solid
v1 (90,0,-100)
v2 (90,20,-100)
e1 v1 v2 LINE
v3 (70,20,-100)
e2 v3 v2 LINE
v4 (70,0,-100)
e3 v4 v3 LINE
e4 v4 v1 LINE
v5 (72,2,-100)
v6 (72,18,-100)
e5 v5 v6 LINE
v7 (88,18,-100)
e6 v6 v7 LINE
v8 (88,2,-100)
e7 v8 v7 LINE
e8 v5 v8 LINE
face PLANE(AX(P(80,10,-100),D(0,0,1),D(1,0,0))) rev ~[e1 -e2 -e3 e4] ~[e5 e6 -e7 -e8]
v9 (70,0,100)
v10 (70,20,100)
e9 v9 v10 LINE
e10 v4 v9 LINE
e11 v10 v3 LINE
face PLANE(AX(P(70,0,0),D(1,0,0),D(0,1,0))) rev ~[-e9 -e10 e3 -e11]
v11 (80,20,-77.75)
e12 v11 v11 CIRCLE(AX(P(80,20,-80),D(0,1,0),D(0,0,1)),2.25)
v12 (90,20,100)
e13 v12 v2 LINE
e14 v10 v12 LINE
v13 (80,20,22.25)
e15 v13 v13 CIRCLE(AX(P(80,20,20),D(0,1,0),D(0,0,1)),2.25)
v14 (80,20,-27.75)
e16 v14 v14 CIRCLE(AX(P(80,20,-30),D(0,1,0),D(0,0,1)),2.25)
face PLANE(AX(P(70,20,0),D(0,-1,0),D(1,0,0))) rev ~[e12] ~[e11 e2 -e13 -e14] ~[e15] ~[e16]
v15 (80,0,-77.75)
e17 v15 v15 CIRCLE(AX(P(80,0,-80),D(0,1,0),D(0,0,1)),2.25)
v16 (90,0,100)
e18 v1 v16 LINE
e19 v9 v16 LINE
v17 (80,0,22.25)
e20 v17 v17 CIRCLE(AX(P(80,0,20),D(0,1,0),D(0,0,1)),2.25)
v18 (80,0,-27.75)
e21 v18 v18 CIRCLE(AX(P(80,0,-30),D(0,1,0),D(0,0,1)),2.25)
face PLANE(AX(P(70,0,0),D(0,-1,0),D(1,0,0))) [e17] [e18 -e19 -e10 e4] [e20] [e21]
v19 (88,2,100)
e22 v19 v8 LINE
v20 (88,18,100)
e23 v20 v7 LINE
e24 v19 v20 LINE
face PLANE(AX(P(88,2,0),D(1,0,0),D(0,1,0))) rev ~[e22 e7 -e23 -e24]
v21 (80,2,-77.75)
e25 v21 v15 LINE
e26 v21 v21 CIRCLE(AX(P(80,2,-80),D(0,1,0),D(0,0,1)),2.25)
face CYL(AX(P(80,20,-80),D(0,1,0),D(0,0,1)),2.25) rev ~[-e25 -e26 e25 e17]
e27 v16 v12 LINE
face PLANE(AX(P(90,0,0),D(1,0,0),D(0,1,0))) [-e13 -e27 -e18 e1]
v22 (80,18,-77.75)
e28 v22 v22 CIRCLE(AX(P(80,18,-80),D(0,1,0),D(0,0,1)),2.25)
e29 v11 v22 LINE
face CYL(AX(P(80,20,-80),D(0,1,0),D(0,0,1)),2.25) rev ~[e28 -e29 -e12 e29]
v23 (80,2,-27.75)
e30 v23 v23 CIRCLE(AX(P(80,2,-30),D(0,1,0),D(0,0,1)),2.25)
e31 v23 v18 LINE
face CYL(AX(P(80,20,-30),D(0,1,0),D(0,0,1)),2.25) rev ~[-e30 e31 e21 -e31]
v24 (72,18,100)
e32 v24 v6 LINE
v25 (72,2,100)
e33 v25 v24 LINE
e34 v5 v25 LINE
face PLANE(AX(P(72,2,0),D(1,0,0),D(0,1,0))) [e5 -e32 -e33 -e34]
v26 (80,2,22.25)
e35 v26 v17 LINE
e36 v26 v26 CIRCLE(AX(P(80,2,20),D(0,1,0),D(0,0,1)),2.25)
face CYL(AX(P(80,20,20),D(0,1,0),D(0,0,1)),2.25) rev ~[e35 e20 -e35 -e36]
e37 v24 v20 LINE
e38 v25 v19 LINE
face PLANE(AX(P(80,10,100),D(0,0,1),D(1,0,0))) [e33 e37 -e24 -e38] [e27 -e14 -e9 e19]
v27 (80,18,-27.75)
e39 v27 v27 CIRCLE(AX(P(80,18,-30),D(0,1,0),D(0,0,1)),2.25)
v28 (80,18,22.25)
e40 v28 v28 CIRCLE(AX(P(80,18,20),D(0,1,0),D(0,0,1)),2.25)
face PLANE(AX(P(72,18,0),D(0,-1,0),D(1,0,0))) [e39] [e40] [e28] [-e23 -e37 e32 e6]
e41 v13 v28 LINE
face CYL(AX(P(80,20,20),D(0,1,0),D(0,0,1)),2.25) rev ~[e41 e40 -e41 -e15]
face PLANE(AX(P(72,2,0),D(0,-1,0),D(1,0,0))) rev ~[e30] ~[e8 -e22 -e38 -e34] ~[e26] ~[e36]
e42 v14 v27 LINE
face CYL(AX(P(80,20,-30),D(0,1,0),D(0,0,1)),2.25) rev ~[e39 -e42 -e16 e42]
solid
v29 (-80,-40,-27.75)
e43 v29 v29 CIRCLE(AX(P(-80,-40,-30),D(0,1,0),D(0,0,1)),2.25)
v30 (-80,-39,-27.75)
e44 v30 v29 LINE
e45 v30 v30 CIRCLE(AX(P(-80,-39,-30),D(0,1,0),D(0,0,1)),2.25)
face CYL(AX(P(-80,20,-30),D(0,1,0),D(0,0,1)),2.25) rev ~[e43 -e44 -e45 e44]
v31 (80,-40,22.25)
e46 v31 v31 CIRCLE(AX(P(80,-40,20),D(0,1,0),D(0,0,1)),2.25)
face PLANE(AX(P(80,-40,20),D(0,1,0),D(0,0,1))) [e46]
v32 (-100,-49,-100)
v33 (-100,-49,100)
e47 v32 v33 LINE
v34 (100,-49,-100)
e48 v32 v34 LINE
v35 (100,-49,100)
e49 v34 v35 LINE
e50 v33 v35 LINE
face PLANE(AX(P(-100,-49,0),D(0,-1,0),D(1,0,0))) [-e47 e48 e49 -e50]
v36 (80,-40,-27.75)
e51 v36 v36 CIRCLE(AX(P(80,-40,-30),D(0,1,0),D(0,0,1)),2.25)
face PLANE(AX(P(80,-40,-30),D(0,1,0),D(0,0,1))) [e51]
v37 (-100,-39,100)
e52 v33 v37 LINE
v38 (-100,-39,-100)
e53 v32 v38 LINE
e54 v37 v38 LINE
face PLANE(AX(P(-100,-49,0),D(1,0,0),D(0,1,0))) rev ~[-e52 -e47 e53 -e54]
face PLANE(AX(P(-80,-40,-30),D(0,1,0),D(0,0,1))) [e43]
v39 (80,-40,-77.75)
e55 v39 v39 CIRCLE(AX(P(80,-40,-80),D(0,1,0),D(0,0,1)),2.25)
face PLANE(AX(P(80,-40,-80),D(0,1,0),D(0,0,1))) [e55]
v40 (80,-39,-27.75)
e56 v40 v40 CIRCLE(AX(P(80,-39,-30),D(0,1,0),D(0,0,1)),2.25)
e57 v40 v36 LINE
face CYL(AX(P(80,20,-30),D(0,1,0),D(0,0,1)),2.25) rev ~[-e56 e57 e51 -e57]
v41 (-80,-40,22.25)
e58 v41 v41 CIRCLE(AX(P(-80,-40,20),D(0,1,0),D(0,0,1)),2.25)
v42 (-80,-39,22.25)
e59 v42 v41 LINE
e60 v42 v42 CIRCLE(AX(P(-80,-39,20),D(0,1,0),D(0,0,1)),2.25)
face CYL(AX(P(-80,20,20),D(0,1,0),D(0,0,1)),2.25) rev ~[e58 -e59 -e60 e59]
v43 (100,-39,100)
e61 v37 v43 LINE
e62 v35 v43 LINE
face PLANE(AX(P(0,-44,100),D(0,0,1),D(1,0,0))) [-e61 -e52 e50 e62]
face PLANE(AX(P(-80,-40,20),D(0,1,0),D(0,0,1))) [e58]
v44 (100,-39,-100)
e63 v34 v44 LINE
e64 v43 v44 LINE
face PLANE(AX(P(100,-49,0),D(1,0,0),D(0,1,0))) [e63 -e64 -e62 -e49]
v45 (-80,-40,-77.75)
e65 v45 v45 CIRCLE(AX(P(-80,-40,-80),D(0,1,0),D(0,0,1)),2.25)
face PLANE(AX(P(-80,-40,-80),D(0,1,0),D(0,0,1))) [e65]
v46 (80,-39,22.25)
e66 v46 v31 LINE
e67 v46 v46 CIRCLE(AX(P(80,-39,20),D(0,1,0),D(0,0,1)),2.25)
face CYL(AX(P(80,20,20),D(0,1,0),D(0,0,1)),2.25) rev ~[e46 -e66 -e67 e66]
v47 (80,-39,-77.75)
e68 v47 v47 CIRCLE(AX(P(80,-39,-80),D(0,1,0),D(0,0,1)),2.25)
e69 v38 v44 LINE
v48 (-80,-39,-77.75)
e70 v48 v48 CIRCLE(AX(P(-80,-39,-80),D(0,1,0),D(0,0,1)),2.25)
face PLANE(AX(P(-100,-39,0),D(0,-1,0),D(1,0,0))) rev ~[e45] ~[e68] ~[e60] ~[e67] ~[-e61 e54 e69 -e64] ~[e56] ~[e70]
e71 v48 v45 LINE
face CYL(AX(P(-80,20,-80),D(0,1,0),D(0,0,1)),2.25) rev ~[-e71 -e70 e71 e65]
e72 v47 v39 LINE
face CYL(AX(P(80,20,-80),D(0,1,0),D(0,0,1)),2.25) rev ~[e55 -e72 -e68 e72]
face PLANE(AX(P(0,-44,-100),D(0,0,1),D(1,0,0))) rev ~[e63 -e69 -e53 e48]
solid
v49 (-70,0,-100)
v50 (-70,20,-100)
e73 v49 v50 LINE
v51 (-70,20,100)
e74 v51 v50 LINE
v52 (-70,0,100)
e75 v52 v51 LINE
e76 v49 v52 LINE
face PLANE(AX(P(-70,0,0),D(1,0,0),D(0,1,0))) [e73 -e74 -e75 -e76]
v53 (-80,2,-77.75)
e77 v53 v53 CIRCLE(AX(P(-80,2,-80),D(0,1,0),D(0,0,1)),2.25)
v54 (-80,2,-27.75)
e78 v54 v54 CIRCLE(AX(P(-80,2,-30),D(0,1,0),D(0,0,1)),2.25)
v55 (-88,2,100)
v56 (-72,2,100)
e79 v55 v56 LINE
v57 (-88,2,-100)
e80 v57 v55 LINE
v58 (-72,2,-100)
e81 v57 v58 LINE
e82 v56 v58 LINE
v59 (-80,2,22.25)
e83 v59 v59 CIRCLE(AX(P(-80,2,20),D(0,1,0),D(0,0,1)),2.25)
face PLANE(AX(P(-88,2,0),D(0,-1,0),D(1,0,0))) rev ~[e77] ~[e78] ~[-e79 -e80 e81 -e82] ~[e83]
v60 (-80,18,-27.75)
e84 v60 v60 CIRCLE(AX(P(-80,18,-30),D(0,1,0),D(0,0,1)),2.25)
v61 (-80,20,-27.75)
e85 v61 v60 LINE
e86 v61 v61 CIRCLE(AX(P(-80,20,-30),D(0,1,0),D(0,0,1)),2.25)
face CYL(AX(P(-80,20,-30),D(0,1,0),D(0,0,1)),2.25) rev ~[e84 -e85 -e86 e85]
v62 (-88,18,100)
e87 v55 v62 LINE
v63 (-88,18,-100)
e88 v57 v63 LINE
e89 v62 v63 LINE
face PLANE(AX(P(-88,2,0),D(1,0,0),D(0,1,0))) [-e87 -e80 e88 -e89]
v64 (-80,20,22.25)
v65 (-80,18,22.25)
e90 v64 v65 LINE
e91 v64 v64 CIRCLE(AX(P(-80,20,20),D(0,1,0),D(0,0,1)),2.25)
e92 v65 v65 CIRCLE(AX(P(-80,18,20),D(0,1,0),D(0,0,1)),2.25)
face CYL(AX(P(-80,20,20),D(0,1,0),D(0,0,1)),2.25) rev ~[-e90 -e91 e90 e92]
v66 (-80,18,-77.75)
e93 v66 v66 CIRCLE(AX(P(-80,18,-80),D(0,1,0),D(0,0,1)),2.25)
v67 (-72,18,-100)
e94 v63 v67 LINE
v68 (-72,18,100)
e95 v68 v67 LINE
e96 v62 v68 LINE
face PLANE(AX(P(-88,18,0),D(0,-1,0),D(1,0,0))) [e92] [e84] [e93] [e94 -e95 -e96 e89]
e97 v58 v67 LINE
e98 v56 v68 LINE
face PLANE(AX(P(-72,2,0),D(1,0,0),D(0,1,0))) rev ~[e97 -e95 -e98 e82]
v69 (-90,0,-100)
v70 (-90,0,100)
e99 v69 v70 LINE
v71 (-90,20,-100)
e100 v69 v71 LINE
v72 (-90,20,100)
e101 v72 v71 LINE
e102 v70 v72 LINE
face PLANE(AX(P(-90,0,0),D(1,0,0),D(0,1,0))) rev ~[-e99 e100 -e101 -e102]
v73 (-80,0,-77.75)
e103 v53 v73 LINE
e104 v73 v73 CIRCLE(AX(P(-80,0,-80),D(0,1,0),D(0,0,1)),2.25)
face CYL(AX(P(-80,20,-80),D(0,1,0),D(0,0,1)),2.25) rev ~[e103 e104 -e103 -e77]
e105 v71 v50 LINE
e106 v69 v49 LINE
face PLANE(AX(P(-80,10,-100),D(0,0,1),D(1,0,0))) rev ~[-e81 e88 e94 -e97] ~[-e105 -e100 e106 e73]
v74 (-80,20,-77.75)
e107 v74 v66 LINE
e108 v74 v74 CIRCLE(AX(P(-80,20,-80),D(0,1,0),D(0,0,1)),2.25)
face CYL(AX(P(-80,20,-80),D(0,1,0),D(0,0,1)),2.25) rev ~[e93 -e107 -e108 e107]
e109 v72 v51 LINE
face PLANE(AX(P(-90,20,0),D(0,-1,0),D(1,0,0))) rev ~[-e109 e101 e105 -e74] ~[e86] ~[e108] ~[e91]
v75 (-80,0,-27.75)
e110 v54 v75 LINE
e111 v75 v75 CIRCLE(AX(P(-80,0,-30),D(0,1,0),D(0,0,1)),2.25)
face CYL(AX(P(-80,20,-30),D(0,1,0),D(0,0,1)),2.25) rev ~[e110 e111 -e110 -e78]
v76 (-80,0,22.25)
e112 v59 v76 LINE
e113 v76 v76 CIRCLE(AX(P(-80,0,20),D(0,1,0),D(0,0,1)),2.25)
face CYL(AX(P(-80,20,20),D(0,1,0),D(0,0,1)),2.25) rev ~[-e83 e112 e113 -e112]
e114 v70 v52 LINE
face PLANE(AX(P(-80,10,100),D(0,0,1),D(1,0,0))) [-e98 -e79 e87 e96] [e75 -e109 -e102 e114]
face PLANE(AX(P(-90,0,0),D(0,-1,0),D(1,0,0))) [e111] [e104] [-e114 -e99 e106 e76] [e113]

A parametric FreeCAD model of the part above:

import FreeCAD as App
import Part
import Sketcher

V = App.Vector
Q = App.Units.Quantity


def add_polygon(sketch, points):
    """Adds a closed chain of lines whose ends are joined by coincident constraints."""
    first, n = sketch.GeometryCount, len(points)
    for a, b in zip(points, points[1:] + points[:1]):
        sketch.addGeometry(Part.LineSegment(App.Vector(*a, 0), App.Vector(*b, 0)), False)
    for i in range(n):
        sketch.addConstraint(Sketcher.Constraint("Coincident", first + i, 2, first + (i + 1) % n, 1))

doc = App.newDocument("Part")
body = doc.addObject("PartDesign::Body", "Body")

sketch1 = doc.addObject("Sketcher::SketchObject", "Sketch")
body.addObject(sketch1)
sketch1.AttachmentSupport = (doc.XY_Plane, [""])
sketch1.MapMode = "FlatFace"
add_polygon(sketch1, [(-100, -39), (-100, -49), (100, -49), (100, -39)])
sketch1.addConstraint([
    Sketcher.Constraint("Vertical", 0),
    Sketcher.Constraint("Horizontal", 1),
    Sketcher.Constraint("Vertical", 2),
    Sketcher.Constraint("Horizontal", 3),
    Sketcher.Constraint("DistanceX", 1, 1, 1, 2, Q("200 mm")),
    Sketcher.Constraint("DistanceY", 0, 2, 0, 1, Q("10 mm")),
    Sketcher.Constraint("DistanceX", 0, 2, -1, 1, Q("100 mm")),
    Sketcher.Constraint("DistanceY", 0, 2, -1, 1, Q("49 mm")),
])
pad1 = doc.addObject("PartDesign::Pad", "Pad")
body.addObject(pad1)
pad1.Profile = sketch1
pad1.Length = 200
pad1.Midplane = True

sketch2 = doc.addObject("Sketcher::SketchObject", "Sketch001")
body.addObject(sketch2)
sketch2.AttachmentSupport = (doc.XZ_Plane, [""])
sketch2.MapMode = "FlatFace"
sketch2.AttachmentOffset = App.Placement(V(0, 0, -20), App.Rotation())
sketch2.addGeometry([
    Part.Circle(V(80, 20, 0), V(0, 0, 1), 2.2),
    Part.Circle(V(80, -30, 0), V(0, 0, 1), 2.2),
    Part.Circle(V(80, -80, 0), V(0, 0, 1), 2.2),
    Part.Circle(V(-80, 20, 0), V(0, 0, 1), 2.2),
    Part.Circle(V(-80, -30, 0), V(0, 0, 1), 2.2),
    Part.Circle(V(-80, -80, 0), V(0, 0, 1), 2.2),
], False)
sketch2.addConstraint([
    Sketcher.Constraint("Equal", 0, 1),
    Sketcher.Constraint("Equal", 1, 2),
    Sketcher.Constraint("Equal", 2, 3),
    Sketcher.Constraint("Equal", 3, 4),
    Sketcher.Constraint("Equal", 4, 5),
    Sketcher.Constraint("Symmetric", 0, 3, 3, 3, -2),
    Sketcher.Constraint("Symmetric", 1, 3, 4, 3, -2),
    Sketcher.Constraint("Symmetric", 2, 3, 5, 3, -2),
    Sketcher.Constraint("Vertical", 0, 3, 1, 3),
    Sketcher.Constraint("Vertical", 1, 3, 2, 3),
    Sketcher.Constraint("Diameter", 0, Q("4.5 mm")),
    Sketcher.Constraint("DistanceX", -1, 1, 0, 3, Q("80 mm")),
    Sketcher.Constraint("DistanceY", -1, 1, 0, 3, Q("20 mm")),
    Sketcher.Constraint("DistanceY", 1, 3, -1, 1, Q("30 mm")),
    Sketcher.Constraint("DistanceY", 2, 3, -1, 1, Q("80 mm")),
])
pocket1 = doc.addObject("PartDesign::Pocket", "Pocket")
body.addObject(pocket1)
pocket1.Profile = sketch2
pocket1.Length = 60
pocket1.Reversed = True
body2 = doc.addObject("PartDesign::Body", "Body001")

sketch3 = doc.addObject("Sketcher::SketchObject", "Sketch002")
body2.addObject(sketch3)
sketch3.AttachmentSupport = (doc.getObject("XY_Plane001"), [""])
sketch3.MapMode = "FlatFace"
add_polygon(sketch3, [(-90, 20), (-90, 0), (-70, 0), (-70, 20)])
add_polygon(sketch3, [(-72, 2), (-88, 2), (-88, 18), (-72, 18)])
sketch3.addConstraint([
    Sketcher.Constraint("Vertical", 0),
    Sketcher.Constraint("Horizontal", 1),
    Sketcher.Constraint("Vertical", 2),
    Sketcher.Constraint("Horizontal", 3),
    Sketcher.Constraint("Horizontal", 4),
    Sketcher.Constraint("Vertical", 5),
    Sketcher.Constraint("Horizontal", 6),
    Sketcher.Constraint("Vertical", 7),
    Sketcher.Constraint("PointOnObject", 0, 2, -1),
    Sketcher.Constraint("Equal", 3, 0),
    Sketcher.Constraint("Equal", 6, 5),
    Sketcher.Constraint("DistanceX", 1, 1, 1, 2, Q("20 mm")),
    Sketcher.Constraint("DistanceX", 4, 2, 4, 1, Q("16 mm")),
    Sketcher.Constraint("DistanceX", 0, 2, -1, 1, Q("90 mm")),
    Sketcher.Constraint("DistanceX", 4, 2, -1, 1, Q("88 mm")),
    Sketcher.Constraint("DistanceY", -1, 1, 4, 2, Q("2 mm")),
])
pad2 = doc.addObject("PartDesign::Pad", "Pad001")
body2.addObject(pad2)
pad2.Profile = sketch3
pad2.Length = 200
pad2.Midplane = True
body3 = doc.addObject("PartDesign::Body", "Body002")

sketch4 = doc.addObject("Sketcher::SketchObject", "Sketch003")
body3.addObject(sketch4)
sketch4.AttachmentSupport = (doc.getObject("XY_Plane002"), [""])
sketch4.MapMode = "FlatFace"
add_polygon(sketch4, [(70, 20), (70, 0), (90, 0), (90, 20)])
add_polygon(sketch4, [(88, 2), (72, 2), (72, 18), (88, 18)])
sketch4.addConstraint([
    Sketcher.Constraint("Vertical", 0),
    Sketcher.Constraint("Horizontal", 1),
    Sketcher.Constraint("Vertical", 2),
    Sketcher.Constraint("Horizontal", 3),
    Sketcher.Constraint("Horizontal", 4),
    Sketcher.Constraint("Vertical", 5),
    Sketcher.Constraint("Horizontal", 6),
    Sketcher.Constraint("Vertical", 7),
    Sketcher.Constraint("PointOnObject", 0, 2, -1),
    Sketcher.Constraint("Equal", 3, 0),
    Sketcher.Constraint("Equal", 6, 5),
    Sketcher.Constraint("DistanceX", 1, 1, 1, 2, Q("20 mm")),
    Sketcher.Constraint("DistanceX", 4, 2, 4, 1, Q("16 mm")),
    Sketcher.Constraint("DistanceX", -1, 1, 0, 2, Q("70 mm")),
    Sketcher.Constraint("DistanceX", -1, 1, 4, 2, Q("72 mm")),
    Sketcher.Constraint("DistanceY", -1, 1, 4, 2, Q("2 mm")),
])
pad3 = doc.addObject("PartDesign::Pad", "Pad002")
body3.addObject(pad3)
pad3.Profile = sketch4
pad3.Length = 200
pad3.Midplane = True
body4 = doc.addObject("PartDesign::Body", "Body003")
body4.AllowCompound = True

sketch5 = doc.addObject("Sketcher::SketchObject", "Sketch004")
body4.addObject(sketch5)
sketch5.AttachmentSupport = (doc.getObject("XZ_Plane003"), [""])
sketch5.MapMode = "FlatFace"
sketch5.AttachmentOffset = App.Placement(V(0, 0, -20), App.Rotation())
sketch5.addGeometry([
    Part.Circle(V(80, -80, 0), V(0, 0, 1), 2.2),
    Part.Circle(V(80, -30, 0), V(0, 0, 1), 2.2),
    Part.Circle(V(80, 20, 0), V(0, 0, 1), 2.2),
    Part.Circle(V(-80, 20, 0), V(0, 0, 1), 2.2),
    Part.Circle(V(-80, -30, 0), V(0, 0, 1), 2.2),
    Part.Circle(V(-80, -80, 0), V(0, 0, 1), 2.2),
], False)
sketch5.addConstraint([
    Sketcher.Constraint("Equal", 0, 1),
    Sketcher.Constraint("Equal", 1, 2),
    Sketcher.Constraint("Equal", 2, 3),
    Sketcher.Constraint("Equal", 3, 4),
    Sketcher.Constraint("Equal", 4, 5),
    Sketcher.Constraint("Symmetric", 2, 3, 3, 3, -2),
    Sketcher.Constraint("Symmetric", 1, 3, 4, 3, -2),
    Sketcher.Constraint("Symmetric", 0, 3, 5, 3, -2),
    Sketcher.Constraint("Vertical", 0, 3, 1, 3),
    Sketcher.Constraint("Vertical", 1, 3, 2, 3),
    Sketcher.Constraint("Diameter", 0, Q("4.5 mm")),
    Sketcher.Constraint("DistanceX", -1, 1, 0, 3, Q("80 mm")),
    Sketcher.Constraint("DistanceY", 0, 3, -1, 1, Q("80 mm")),
    Sketcher.Constraint("DistanceY", 1, 3, -1, 1, Q("30 mm")),
    Sketcher.Constraint("DistanceY", -1, 1, 2, 3, Q("20 mm")),
])
pad4 = doc.addObject("PartDesign::Pad", "Pad003")
body4.addObject(pad4)
pad4.Profile = sketch5
pad4.Length = 20
doc.recompute()

body5 = doc.addObject("PartDesign::Body", "Body004")
body5.BaseFeature = body4
boolean = doc.addObject("PartDesign::Boolean", "Boolean")
body2.addObject(boolean)
boolean.Type = "Cut"
boolean.addObjects([body5])
doc.recompute()

boolean2 = doc.addObject("PartDesign::Boolean", "Boolean001")
body3.addObject(boolean2)
boolean2.Type = "Cut"
boolean2.addObjects([body4])

doc.recompute()
